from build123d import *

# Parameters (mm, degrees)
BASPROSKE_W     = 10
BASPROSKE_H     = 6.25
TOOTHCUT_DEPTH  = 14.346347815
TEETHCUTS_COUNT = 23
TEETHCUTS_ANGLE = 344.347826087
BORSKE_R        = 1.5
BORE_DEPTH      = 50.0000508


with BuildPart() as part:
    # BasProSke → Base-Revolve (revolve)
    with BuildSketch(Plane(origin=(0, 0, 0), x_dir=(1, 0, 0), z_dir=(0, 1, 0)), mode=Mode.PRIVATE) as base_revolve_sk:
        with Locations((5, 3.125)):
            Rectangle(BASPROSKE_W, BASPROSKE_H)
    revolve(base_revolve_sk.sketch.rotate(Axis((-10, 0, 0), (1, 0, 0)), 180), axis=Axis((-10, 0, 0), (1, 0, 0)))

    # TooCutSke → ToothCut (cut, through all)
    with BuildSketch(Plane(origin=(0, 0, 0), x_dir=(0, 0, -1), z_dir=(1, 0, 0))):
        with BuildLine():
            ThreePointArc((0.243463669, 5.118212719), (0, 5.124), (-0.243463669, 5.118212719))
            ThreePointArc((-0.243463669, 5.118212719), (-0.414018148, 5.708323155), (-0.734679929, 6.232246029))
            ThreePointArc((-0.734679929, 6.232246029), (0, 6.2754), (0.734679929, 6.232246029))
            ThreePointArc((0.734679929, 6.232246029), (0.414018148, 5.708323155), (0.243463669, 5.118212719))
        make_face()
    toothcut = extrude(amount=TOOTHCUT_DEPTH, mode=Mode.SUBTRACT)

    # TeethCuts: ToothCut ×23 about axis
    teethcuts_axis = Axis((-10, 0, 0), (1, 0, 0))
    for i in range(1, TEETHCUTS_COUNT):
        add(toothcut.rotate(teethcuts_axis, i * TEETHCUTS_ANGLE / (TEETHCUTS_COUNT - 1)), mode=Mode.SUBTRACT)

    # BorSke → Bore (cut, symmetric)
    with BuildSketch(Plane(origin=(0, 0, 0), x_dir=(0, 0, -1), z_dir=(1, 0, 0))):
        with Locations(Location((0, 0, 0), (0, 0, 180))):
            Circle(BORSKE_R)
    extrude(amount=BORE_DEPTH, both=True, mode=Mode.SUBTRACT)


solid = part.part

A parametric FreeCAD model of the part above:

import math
import FreeCAD as App
import Part
import Sketcher

V = App.Vector


def add_polygon(sketch, points):
    """Adds a closed chain of lines whose ends are joined by coincident constraints."""
    first, n = sketch.GeometryCount, len(points)
    for a, b in zip(points, points[1:] + points[:1]):
        sketch.addGeometry(Part.LineSegment(App.Vector(*a, 0), App.Vector(*b, 0)), False)
    for i in range(n):
        sketch.addConstraint(Sketcher.Constraint("Coincident", first + i, 2, first + (i + 1) % n, 1))

doc = App.newDocument("Part")
body = doc.addObject("PartDesign::Body", "Body")

sketch1 = body.newObject("Sketcher::SketchObject", "Sketch")
sketch1.AttachmentSupport = (doc.getObject("XZ_Plane"), [""])
sketch1.MapMode = "FlatFace"
add_polygon(sketch1, [(0, -6), (0, 0), (10, 0), (10, -6)])
sketch1.addConstraint([
    Sketcher.Constraint("Vertical", 0),
    Sketcher.Constraint("Horizontal", 1),
    Sketcher.Constraint("Vertical", 2),
    Sketcher.Constraint("Horizontal", 3),
    Sketcher.Constraint("Coincident", 0, 2, -1, 1),
    Sketcher.Constraint("DistanceX", 1, 1, 1, 2, 10.0),
    Sketcher.Constraint("DistanceY", 0, 1, 0, 2, 6.25),
])
revolution = body.newObject("PartDesign::Revolution", "Revolution")
revolution.Profile = sketch1
revolution.ReferenceAxis = (sketch1, ["H_Axis"])
revolution.Angle = 360

sketch2 = body.newObject("Sketcher::SketchObject", "Sketch001")
sketch2.AttachmentSupport = (doc.getObject("YZ_Plane"), [""])
sketch2.MapMode = "FlatFace"
sketch2.addGeometry([
    Part.ArcOfCircle(Part.Circle(V(0, 0, 0), V(0, 0, 1), 5.12), math.radians(-2.72), math.radians(2.72)),
    Part.ArcOfCircle(Part.Circle(V(4.78, -2.52, 0), V(0, 0, 1), 2.3), math.radians(51), math.radians(82)),
    Part.ArcOfCircle(Part.Circle(V(0, 0, 0), V(0, 0, 1), 6.28), math.radians(-6.72), math.radians(6.72)),
    Part.ArcOfCircle(Part.Circle(V(4.78, 2.52, 0), V(0, 0, 1), 2.3), math.radians(-82), math.radians(-51)),
], False)
sketch2.addConstraint([
    Sketcher.Constraint("Coincident", 0, 1, 1, 2),
    Sketcher.Constraint("Coincident", 1, 1, 2, 1),
    Sketcher.Constraint("Coincident", 2, 2, 3, 2),
    Sketcher.Constraint("Coincident", 3, 1, 0, 2),
    Sketcher.Constraint("Coincident", 0, 3, -1, 1),
    Sketcher.Constraint("Coincident", 2, 3, -1, 1),
    Sketcher.Constraint("Equal", 1, 3),
    Sketcher.Constraint("Symmetric", 1, 3, 3, 3, -1),
    Sketcher.Constraint("Radius", 1, 2.3),
    Sketcher.Constraint("Radius", 0, 5.124),
    Sketcher.Constraint("Radius", 2, 6.2754),
    Sketcher.Constraint("DistanceY", 1, 1, -1, 1, 0.73468),
    Sketcher.Constraint("DistanceY", 0, 1, 3, 3, 2.76198),
])
pocket1 = body.newObject("PartDesign::Pocket", "Pocket")
pocket1.Profile = sketch2
pocket1.Type = "ThroughAll"
pocket1.Reversed = True
doc.recompute()

polarpattern = body.newObject("PartDesign::PolarPattern", "PolarPattern")
polarpattern.Originals = [pocket1]
polarpattern.Axis = (doc.getObject("X_Axis"), [""])
polarpattern.Angle = 360
polarpattern.Occurrences = 23
body.Tip = polarpattern

sketch3 = body.newObject("Sketcher::SketchObject", "Sketch002")
sketch3.AttachmentSupport = (doc.getObject("YZ_Plane"), [""])
sketch3.MapMode = "FlatFace"
sketch3.addGeometry(Part.Circle(V(0, 0, 0), V(0, 0, 1), 1.5), False)
sketch3.addConstraint([
    Sketcher.Constraint("Coincident", 0, 3, -1, 1),
    Sketcher.Constraint("Diameter", 0, 3.0),
])
pocket2 = body.newObject("PartDesign::Pocket", "Pocket001")
pocket2.Profile = sketch3
pocket2.Length = 100.000102
pocket2.Midplane = True

doc.recompute()
